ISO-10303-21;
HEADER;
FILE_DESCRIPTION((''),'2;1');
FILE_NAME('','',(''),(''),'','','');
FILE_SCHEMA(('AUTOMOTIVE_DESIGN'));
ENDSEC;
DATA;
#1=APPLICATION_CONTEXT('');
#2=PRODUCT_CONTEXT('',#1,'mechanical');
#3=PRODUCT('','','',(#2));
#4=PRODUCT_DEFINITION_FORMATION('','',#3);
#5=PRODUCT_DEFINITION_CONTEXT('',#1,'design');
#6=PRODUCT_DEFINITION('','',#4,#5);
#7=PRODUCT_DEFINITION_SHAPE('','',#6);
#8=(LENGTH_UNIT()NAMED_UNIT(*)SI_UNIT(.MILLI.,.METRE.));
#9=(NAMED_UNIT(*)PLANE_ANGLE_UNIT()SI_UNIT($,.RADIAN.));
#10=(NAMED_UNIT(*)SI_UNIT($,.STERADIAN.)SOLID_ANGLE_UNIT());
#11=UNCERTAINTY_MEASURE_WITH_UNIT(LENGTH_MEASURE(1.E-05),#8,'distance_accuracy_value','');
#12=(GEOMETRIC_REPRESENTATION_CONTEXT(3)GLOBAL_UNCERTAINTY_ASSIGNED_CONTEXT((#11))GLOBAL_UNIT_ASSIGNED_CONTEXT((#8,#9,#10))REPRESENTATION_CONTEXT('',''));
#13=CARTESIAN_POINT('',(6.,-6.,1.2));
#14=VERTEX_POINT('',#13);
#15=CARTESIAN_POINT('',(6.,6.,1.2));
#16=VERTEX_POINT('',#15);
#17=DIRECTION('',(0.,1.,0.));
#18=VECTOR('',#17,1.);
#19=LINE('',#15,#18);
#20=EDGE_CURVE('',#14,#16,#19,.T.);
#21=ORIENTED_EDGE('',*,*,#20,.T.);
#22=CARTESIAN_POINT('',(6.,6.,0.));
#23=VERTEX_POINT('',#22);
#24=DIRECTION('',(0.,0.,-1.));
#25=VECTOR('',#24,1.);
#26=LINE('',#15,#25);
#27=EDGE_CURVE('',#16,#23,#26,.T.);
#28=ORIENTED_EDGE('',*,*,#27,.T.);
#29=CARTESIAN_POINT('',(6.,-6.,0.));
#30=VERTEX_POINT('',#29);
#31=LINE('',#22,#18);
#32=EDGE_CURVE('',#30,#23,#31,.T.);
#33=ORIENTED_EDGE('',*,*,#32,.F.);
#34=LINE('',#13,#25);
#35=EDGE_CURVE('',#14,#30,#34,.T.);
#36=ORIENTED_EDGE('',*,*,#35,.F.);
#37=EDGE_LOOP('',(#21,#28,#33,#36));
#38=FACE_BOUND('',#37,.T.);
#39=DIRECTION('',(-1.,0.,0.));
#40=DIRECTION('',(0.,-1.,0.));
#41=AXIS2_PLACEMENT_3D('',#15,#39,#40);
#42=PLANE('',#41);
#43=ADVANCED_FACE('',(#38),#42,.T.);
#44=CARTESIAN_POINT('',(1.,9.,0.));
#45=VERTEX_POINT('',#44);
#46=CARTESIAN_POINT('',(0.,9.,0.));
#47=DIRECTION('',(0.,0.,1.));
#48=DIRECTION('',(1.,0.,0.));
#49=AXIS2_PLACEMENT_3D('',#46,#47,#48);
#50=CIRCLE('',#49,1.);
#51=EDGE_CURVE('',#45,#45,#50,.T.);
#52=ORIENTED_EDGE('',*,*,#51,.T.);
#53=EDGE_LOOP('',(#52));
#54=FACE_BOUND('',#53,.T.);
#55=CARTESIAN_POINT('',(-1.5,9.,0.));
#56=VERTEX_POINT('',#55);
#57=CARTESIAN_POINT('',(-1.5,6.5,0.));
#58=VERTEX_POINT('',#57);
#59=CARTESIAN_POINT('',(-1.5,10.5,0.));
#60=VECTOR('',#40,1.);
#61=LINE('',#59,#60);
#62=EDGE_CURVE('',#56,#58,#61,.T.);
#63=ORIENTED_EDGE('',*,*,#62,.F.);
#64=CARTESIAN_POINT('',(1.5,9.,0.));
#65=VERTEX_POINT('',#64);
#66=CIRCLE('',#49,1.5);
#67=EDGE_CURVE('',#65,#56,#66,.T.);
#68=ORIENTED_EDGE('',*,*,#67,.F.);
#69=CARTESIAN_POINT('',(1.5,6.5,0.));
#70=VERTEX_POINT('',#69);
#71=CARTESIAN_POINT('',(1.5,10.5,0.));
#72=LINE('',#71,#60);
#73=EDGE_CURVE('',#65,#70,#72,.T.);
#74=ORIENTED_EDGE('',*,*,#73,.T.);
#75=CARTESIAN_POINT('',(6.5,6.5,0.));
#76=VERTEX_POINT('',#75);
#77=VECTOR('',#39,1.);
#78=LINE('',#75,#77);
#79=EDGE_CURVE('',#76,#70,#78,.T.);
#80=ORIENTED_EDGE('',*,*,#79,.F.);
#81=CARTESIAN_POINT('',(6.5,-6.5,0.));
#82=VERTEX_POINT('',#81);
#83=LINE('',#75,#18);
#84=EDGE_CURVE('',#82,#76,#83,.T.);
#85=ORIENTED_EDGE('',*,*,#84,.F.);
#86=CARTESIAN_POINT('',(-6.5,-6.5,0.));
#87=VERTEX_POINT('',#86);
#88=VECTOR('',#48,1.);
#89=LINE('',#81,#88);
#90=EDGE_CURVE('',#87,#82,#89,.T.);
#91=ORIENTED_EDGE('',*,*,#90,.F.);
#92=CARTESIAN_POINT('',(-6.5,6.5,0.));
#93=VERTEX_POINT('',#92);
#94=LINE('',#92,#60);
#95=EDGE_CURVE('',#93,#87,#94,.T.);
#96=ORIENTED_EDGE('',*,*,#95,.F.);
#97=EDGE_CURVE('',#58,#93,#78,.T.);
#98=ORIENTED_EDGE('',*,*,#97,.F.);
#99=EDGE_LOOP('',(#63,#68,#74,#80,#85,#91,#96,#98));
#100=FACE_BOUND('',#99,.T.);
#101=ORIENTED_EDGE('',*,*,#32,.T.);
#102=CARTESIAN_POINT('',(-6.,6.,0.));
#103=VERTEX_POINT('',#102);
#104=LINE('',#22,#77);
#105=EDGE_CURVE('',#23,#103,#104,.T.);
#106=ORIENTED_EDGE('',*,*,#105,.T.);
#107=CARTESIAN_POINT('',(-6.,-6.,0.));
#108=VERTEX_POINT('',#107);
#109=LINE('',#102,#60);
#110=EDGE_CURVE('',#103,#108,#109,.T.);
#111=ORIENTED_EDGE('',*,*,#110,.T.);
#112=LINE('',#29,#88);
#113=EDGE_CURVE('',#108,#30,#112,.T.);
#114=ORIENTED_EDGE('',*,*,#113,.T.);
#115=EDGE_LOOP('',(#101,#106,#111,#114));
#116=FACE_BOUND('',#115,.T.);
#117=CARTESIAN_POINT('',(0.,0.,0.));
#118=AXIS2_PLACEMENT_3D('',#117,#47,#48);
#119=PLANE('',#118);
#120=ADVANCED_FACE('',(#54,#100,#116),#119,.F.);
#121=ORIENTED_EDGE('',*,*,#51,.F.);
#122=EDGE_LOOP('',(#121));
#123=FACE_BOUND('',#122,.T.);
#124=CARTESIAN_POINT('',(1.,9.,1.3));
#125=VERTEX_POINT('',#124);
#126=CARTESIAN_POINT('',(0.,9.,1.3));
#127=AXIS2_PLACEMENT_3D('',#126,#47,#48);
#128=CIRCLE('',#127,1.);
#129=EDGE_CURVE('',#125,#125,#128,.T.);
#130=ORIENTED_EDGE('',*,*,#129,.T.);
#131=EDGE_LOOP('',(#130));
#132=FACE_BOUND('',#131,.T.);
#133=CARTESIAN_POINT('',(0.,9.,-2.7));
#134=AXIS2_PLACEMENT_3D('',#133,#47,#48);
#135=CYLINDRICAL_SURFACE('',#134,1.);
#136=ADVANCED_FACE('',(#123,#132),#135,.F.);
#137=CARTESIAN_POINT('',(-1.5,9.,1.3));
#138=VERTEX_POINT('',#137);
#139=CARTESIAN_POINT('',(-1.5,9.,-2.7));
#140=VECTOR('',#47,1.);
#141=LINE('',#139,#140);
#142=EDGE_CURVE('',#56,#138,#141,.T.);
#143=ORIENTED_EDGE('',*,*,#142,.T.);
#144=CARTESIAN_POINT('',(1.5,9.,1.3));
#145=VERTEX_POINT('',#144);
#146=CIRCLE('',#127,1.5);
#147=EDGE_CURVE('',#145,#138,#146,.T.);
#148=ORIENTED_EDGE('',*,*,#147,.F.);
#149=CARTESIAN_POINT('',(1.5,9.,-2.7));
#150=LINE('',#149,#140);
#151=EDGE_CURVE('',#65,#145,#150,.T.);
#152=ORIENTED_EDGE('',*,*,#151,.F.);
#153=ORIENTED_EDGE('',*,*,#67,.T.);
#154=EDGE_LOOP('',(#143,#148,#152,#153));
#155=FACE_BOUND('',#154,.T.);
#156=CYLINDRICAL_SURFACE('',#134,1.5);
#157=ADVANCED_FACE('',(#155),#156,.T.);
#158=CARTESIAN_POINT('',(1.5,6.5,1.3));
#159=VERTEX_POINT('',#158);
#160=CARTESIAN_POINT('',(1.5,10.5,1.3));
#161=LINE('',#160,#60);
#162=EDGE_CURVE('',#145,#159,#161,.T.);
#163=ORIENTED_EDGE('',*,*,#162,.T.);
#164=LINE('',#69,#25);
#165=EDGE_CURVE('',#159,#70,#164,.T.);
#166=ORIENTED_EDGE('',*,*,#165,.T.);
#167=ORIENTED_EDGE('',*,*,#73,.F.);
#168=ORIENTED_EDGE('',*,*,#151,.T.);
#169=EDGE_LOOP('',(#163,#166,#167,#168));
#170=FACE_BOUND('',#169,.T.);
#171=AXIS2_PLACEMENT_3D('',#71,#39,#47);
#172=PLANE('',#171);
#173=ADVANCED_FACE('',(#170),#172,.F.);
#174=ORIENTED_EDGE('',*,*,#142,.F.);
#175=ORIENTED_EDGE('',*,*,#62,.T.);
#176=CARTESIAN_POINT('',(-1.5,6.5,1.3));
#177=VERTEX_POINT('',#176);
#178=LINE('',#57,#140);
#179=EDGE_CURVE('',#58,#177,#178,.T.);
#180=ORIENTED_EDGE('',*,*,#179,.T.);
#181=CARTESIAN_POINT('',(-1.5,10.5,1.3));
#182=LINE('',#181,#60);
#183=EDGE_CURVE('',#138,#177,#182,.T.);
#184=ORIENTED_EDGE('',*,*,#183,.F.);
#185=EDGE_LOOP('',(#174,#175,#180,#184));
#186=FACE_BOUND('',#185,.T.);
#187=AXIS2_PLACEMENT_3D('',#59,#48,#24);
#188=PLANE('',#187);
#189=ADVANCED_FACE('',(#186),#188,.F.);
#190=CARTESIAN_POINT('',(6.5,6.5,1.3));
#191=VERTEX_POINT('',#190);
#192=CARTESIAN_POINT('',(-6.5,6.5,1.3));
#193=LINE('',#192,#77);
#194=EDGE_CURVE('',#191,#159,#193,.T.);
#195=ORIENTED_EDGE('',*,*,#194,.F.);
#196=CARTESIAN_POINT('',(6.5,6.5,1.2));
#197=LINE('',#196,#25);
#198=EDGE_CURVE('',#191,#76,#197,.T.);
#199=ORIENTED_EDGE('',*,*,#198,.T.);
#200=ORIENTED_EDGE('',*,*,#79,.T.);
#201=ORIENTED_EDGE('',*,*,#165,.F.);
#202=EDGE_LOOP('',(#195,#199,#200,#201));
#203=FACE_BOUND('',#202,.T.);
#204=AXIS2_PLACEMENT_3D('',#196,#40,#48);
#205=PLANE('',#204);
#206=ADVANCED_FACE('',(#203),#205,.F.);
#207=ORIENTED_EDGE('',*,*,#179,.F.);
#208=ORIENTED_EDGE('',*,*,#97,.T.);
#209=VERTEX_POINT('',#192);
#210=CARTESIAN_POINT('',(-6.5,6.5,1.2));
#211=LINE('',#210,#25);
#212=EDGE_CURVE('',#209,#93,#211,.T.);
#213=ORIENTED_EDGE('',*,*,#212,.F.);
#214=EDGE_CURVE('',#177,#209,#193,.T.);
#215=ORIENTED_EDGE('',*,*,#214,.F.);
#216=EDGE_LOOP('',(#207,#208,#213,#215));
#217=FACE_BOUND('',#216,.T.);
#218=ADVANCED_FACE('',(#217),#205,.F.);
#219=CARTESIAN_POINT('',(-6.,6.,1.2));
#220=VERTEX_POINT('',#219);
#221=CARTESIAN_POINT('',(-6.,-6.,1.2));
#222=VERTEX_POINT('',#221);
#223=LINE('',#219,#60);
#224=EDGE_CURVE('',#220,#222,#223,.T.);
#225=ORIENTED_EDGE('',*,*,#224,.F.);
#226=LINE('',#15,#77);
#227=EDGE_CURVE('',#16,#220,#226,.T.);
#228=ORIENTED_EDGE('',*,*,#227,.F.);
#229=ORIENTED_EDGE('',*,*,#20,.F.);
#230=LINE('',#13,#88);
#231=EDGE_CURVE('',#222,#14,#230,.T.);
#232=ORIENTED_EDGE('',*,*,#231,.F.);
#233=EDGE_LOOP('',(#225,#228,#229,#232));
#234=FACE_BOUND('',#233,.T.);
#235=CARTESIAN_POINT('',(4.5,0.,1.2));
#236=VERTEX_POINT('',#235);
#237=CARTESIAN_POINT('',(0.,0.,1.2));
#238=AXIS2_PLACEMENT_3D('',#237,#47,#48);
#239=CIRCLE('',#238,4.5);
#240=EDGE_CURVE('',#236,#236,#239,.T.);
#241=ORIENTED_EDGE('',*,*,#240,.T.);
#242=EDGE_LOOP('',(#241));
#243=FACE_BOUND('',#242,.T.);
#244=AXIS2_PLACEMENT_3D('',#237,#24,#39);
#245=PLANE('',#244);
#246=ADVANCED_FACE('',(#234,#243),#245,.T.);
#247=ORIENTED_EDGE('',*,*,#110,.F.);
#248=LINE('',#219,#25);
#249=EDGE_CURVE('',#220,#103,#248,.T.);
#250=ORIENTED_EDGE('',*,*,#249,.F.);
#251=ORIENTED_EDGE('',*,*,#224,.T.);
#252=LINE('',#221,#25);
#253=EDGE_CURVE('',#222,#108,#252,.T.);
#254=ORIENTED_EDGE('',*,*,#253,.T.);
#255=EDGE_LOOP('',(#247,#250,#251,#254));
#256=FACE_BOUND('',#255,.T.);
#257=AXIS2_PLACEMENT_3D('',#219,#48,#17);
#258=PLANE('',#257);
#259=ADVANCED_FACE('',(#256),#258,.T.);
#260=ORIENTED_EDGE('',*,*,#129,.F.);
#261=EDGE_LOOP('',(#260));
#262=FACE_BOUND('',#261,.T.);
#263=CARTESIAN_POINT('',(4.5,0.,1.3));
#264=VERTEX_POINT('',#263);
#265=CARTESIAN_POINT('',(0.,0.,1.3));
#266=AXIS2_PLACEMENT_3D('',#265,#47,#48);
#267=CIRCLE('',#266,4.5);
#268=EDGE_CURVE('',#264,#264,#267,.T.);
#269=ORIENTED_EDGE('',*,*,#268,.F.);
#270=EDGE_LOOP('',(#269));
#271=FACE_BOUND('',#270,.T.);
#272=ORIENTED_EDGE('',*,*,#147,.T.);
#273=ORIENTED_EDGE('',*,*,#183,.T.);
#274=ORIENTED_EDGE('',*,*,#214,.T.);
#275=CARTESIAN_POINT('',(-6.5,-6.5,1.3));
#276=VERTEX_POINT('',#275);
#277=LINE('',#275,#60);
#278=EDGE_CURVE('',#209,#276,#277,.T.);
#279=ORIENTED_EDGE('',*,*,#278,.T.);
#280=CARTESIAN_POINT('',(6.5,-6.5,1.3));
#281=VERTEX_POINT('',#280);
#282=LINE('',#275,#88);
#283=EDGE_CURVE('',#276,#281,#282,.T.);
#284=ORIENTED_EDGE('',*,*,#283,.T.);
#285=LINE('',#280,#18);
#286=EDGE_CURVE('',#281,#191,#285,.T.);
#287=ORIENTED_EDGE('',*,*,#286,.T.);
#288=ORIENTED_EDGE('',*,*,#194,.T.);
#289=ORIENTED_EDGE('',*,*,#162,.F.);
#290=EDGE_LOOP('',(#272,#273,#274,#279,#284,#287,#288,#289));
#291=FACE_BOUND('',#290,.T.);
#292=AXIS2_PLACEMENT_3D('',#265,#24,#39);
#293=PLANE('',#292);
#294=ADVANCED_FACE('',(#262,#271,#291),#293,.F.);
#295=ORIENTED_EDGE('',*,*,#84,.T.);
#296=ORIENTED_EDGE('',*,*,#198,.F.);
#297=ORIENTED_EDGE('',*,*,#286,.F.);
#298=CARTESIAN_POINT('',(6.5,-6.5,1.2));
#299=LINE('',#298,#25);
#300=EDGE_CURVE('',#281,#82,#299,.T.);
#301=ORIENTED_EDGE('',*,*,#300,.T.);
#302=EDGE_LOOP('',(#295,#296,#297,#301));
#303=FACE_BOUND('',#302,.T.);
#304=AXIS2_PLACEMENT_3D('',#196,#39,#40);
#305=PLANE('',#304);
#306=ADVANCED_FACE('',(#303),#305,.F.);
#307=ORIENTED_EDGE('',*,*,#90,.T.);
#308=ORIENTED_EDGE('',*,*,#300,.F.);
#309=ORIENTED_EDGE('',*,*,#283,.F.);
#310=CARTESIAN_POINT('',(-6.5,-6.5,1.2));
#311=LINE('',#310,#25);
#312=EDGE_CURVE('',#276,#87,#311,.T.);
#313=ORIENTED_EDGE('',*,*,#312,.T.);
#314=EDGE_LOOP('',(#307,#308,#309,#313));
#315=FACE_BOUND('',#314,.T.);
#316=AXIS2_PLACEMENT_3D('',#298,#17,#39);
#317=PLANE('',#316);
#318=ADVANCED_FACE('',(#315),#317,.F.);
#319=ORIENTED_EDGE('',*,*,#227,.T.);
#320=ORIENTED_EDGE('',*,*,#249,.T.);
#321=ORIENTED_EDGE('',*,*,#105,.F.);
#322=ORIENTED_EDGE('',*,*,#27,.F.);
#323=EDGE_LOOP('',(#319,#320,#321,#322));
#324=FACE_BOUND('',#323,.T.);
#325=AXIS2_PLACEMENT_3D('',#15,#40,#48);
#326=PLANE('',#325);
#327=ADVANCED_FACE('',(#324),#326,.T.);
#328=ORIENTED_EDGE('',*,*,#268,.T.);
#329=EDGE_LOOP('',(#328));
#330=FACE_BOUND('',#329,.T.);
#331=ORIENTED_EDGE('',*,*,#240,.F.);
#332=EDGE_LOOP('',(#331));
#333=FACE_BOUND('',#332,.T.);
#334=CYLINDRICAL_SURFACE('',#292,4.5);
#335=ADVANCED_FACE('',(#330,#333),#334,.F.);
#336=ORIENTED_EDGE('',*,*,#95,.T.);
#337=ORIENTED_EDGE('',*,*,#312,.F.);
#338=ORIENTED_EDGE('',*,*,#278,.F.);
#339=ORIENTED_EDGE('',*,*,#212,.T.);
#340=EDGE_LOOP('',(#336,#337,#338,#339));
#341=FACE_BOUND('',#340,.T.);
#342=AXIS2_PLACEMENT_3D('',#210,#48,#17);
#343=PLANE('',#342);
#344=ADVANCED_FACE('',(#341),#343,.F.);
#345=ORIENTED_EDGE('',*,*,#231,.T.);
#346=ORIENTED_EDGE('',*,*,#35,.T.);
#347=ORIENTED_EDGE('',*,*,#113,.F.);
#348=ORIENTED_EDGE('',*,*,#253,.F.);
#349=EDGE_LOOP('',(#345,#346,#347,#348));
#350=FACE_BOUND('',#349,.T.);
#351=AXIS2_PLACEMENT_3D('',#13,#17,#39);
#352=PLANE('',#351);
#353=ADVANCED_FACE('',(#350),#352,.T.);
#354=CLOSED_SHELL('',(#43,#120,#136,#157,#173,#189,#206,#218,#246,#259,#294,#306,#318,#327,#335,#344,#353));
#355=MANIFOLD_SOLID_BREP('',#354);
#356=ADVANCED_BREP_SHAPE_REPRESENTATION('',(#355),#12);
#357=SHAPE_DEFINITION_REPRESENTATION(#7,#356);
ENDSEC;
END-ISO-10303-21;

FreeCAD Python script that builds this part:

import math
import FreeCAD as App
import Part
import Sketcher
Q = App.Units.Quantity

doc = App.newDocument("Part")
body = doc.addObject("PartDesign::Body", "Body")

# Sketch on XY plane
sketch1 = doc.addObject("Sketcher::SketchObject", "Sketch")
body.addObject(sketch1)
sketch1.AttachmentSupport = (doc.XY_Plane, [""])
sketch1.MapMode = "FlatFace"
sketch1.addGeometry([
    Part.LineSegment(App.Vector(-6.5, 6.5, 0), App.Vector(-6.5, -6.5, 0)),  # 0
    Part.LineSegment(App.Vector(-6.5, -6.5, 0), App.Vector(6.5, -6.5, 0)),  # 1
    Part.LineSegment(App.Vector(6.5, -6.5, 0), App.Vector(6.5, 6.5, 0)),  # 2
    Part.LineSegment(App.Vector(6.5, 6.5, 0), App.Vector(-6.5, 6.5, 0)),  # 3
    Part.LineSegment(App.Vector(6, -6, 0), App.Vector(-6, -6, 0)),  # 4
    Part.LineSegment(App.Vector(-6, -6, 0), App.Vector(-6, 6, 0)),  # 5
    Part.LineSegment(App.Vector(-6, 6, 0), App.Vector(6, 6, 0)),  # 6
    Part.LineSegment(App.Vector(6, 6, 0), App.Vector(6, -6, 0)),  # 7
], False)
sketch1.addConstraint([
    Sketcher.Constraint("Coincident", 0, 2, 1, 1),
    Sketcher.Constraint("Coincident", 1, 2, 2, 1),
    Sketcher.Constraint("Coincident", 2, 2, 3, 1),
    Sketcher.Constraint("Coincident", 3, 2, 0, 1),
    Sketcher.Constraint("Coincident", 4, 2, 5, 1),
    Sketcher.Constraint("Coincident", 5, 2, 6, 1),
    Sketcher.Constraint("Coincident", 6, 2, 7, 1),
    Sketcher.Constraint("Coincident", 7, 2, 4, 1),
    Sketcher.Constraint("Vertical", 0),
    Sketcher.Constraint("Horizontal", 1),
    Sketcher.Constraint("Vertical", 2),
    Sketcher.Constraint("Horizontal", 3),
    Sketcher.Constraint("Horizontal", 4),
    Sketcher.Constraint("Vertical", 5),
    Sketcher.Constraint("Horizontal", 6),
    Sketcher.Constraint("Vertical", 7),
    Sketcher.Constraint("Symmetric", 0, 2, 2, 2, -1, 1),
    Sketcher.Constraint("Symmetric", 4, 2, 6, 2, -1, 1),
    Sketcher.Constraint("Equal", 3, 0),
    Sketcher.Constraint("Equal", 6, 5),
    Sketcher.Constraint("DistanceX", 1, 1, 1, 2, Q("13 mm")),
    Sketcher.Constraint("DistanceX", 4, 2, 4, 1, Q("12 mm")),
])
pad1 = doc.addObject("PartDesign::Pad", "Pad")
body.addObject(pad1)
pad1.Profile = sketch1
pad1.Length = 1.2

# Sketch on XY plane
sketch2 = doc.addObject("Sketcher::SketchObject", "Sketch001")
body.addObject(sketch2)
sketch2.AttachmentSupport = (doc.XY_Plane, [""])
sketch2.MapMode = "FlatFace"
sketch2.AttachmentOffset = App.Placement(App.Vector(0, 0, 1.2), App.Rotation())
sketch2.addGeometry([
    Part.LineSegment(App.Vector(-6.5, 6.5, 0), App.Vector(-6.5, -6.5, 0)),  # 0
    Part.LineSegment(App.Vector(-6.5, -6.5, 0), App.Vector(6.5, -6.5, 0)),  # 1
    Part.LineSegment(App.Vector(6.5, -6.5, 0), App.Vector(6.5, 6.5, 0)),  # 2
    Part.LineSegment(App.Vector(6.5, 6.5, 0), App.Vector(-6.5, 6.5, 0)),  # 3
    Part.Circle(App.Vector(0, 0, 0), App.Vector(0, 0, 1), 4.5),  # 4
], False)
sketch2.addConstraint([
    Sketcher.Constraint("Coincident", 0, 2, 1, 1),
    Sketcher.Constraint("Coincident", 1, 2, 2, 1),
    Sketcher.Constraint("Coincident", 2, 2, 3, 1),
    Sketcher.Constraint("Coincident", 3, 2, 0, 1),
    Sketcher.Constraint("Vertical", 0),
    Sketcher.Constraint("Horizontal", 1),
    Sketcher.Constraint("Vertical", 2),
    Sketcher.Constraint("Horizontal", 3),
    Sketcher.Constraint("Coincident", 4, 3, -1, 1),
    Sketcher.Constraint("Symmetric", 0, 2, 2, 2, -1, 1),
    Sketcher.Constraint("Equal", 3, 0),
    Sketcher.Constraint("Diameter", 4, Q("9 mm")),
    Sketcher.Constraint("DistanceX", 1, 1, 1, 2, Q("13 mm")),
])
pad2 = doc.addObject("PartDesign::Pad", "Pad001")
body.addObject(pad2)
pad2.Profile = sketch2
pad2.Length = 0.1

# Sketch on XZ plane
sketch3 = doc.addObject("Sketcher::SketchObject", "Sketch002")
body.addObject(sketch3)
sketch3.AttachmentSupport = (doc.XZ_Plane, [""])
sketch3.MapMode = "FlatFace"
sketch3.AttachmentOffset = App.Placement(App.Vector(0, 0, -6.5), App.Rotation())
sketch3.addGeometry([
    Part.LineSegment(App.Vector(-1.5, 0, 0), App.Vector(-1.5, 1.3, 0)),
    Part.LineSegment(App.Vector(-1.5, 1.3, 0), App.Vector(1.5, 1.3, 0)),
    Part.LineSegment(App.Vector(1.5, 1.3, 0), App.Vector(1.5, 0, 0)),
    Part.LineSegment(App.Vector(1.5, 0, 0), App.Vector(-1.5, 0, 0)),
], False)
sketch3.addConstraint([
    Sketcher.Constraint("Coincident", 0, 2, 1, 1),
    Sketcher.Constraint("Coincident", 1, 2, 2, 1),
    Sketcher.Constraint("Coincident", 2, 2, 3, 1),
    Sketcher.Constraint("Coincident", 3, 2, 0, 1),
    Sketcher.Constraint("Vertical", 0),
    Sketcher.Constraint("Horizontal", 1),
    Sketcher.Constraint("Vertical", 2),
    Sketcher.Constraint("Horizontal", 3),
    Sketcher.Constraint("Symmetric", 2, 2, 3, 2, -1, 1),
    Sketcher.Constraint("DistanceX", 1, 1, 1, 2, Q("3 mm")),
    Sketcher.Constraint("DistanceY", 0, 1, 0, 2, Q("1.3 mm")),
])
pad3 = doc.addObject("PartDesign::Pad", "Pad002")
body.addObject(pad3)
pad3.Profile = sketch3
pad3.Length = 4
pad3.Reversed = True

# Sketch on XY plane
sketch4 = doc.addObject("Sketcher::SketchObject", "Sketch003")
body.addObject(sketch4)
sketch4.AttachmentSupport = (doc.XY_Plane, [""])
sketch4.MapMode = "FlatFace"
sketch4.AttachmentOffset = App.Placement(App.Vector(0, 0, 1.3), App.Rotation())
sketch4.addGeometry([
    Part.LineSegment(App.Vector(-1.5, 10.5, 0), App.Vector(-1.5, 9, 0)),  # 0
    Part.ArcOfCircle(Part.Circle(App.Vector(0, 9, 0), App.Vector(0, 0, 1), 1.5), math.radians(90), math.radians(180)),  # 1
    Part.LineSegment(App.Vector(0, 10.5, 0), App.Vector(-1.5, 10.5, 0)),  # 2
    Part.ArcOfCircle(Part.Circle(App.Vector(0, 9, 0), App.Vector(0, 0, 1), 1.5), math.radians(0), math.radians(90)),  # 3
    Part.LineSegment(App.Vector(1.5, 9, 0), App.Vector(1.5, 10.5, 0)),  # 4
    Part.LineSegment(App.Vector(1.5, 10.5, 0), App.Vector(0, 10.5, 0)),  # 5
], False)
sketch4.addConstraint([
    Sketcher.Constraint("Tangent", 0, 2, 1, 2),
    Sketcher.Constraint("Tangent", 1, 1, 2, 1),
    Sketcher.Constraint("Coincident", 2, 2, 0, 1),
    Sketcher.Constraint("Tangent", 3, 1, 4, 1),
    Sketcher.Constraint("Coincident", 4, 2, 5, 1),
    Sketcher.Constraint("Tangent", 5, 2, 3, 2),
    Sketcher.Constraint("Vertical", 0),
    Sketcher.Constraint("Horizontal", 2),
    Sketcher.Constraint("Vertical", 4),
    Sketcher.Constraint("Horizontal", 5),
    Sketcher.Constraint("Coincident", 3, 3, 1, 3),
    Sketcher.Constraint("Equal", 1, 3),
    Sketcher.Constraint("PointOnObject", 1, 3, -2),
    Sketcher.Constraint("Radius", 1, Q("1.5 mm")),
    Sketcher.Constraint("DistanceY", -1, 1, 1, 3, Q("9 mm")),
])
pocket1 = doc.addObject("PartDesign::Pocket", "Pocket")
body.addObject(pocket1)
pocket1.Profile = sketch4
pocket1.Length = 4

# Sketch on XY plane
sketch5 = doc.addObject("Sketcher::SketchObject", "Sketch004")
body.addObject(sketch5)
sketch5.AttachmentSupport = (doc.XY_Plane, [""])
sketch5.MapMode = "FlatFace"
sketch5.AttachmentOffset = App.Placement(App.Vector(0, 0, 1.3), App.Rotation())
sketch5.addGeometry(Part.Circle(App.Vector(0, 9, 0), App.Vector(0, 0, 1), 1), False)
sketch5.addConstraint([
    Sketcher.Constraint("PointOnObject", 0, 3, -2),
    Sketcher.Constraint("Diameter", 0, Q("2 mm")),
    Sketcher.Constraint("DistanceY", -1, 1, 0, 3, Q("9 mm")),
])
pocket2 = doc.addObject("PartDesign::Pocket", "Pocket001")
body.addObject(pocket2)
pocket2.Profile = sketch5
pocket2.Length = 4

doc.recompute()
